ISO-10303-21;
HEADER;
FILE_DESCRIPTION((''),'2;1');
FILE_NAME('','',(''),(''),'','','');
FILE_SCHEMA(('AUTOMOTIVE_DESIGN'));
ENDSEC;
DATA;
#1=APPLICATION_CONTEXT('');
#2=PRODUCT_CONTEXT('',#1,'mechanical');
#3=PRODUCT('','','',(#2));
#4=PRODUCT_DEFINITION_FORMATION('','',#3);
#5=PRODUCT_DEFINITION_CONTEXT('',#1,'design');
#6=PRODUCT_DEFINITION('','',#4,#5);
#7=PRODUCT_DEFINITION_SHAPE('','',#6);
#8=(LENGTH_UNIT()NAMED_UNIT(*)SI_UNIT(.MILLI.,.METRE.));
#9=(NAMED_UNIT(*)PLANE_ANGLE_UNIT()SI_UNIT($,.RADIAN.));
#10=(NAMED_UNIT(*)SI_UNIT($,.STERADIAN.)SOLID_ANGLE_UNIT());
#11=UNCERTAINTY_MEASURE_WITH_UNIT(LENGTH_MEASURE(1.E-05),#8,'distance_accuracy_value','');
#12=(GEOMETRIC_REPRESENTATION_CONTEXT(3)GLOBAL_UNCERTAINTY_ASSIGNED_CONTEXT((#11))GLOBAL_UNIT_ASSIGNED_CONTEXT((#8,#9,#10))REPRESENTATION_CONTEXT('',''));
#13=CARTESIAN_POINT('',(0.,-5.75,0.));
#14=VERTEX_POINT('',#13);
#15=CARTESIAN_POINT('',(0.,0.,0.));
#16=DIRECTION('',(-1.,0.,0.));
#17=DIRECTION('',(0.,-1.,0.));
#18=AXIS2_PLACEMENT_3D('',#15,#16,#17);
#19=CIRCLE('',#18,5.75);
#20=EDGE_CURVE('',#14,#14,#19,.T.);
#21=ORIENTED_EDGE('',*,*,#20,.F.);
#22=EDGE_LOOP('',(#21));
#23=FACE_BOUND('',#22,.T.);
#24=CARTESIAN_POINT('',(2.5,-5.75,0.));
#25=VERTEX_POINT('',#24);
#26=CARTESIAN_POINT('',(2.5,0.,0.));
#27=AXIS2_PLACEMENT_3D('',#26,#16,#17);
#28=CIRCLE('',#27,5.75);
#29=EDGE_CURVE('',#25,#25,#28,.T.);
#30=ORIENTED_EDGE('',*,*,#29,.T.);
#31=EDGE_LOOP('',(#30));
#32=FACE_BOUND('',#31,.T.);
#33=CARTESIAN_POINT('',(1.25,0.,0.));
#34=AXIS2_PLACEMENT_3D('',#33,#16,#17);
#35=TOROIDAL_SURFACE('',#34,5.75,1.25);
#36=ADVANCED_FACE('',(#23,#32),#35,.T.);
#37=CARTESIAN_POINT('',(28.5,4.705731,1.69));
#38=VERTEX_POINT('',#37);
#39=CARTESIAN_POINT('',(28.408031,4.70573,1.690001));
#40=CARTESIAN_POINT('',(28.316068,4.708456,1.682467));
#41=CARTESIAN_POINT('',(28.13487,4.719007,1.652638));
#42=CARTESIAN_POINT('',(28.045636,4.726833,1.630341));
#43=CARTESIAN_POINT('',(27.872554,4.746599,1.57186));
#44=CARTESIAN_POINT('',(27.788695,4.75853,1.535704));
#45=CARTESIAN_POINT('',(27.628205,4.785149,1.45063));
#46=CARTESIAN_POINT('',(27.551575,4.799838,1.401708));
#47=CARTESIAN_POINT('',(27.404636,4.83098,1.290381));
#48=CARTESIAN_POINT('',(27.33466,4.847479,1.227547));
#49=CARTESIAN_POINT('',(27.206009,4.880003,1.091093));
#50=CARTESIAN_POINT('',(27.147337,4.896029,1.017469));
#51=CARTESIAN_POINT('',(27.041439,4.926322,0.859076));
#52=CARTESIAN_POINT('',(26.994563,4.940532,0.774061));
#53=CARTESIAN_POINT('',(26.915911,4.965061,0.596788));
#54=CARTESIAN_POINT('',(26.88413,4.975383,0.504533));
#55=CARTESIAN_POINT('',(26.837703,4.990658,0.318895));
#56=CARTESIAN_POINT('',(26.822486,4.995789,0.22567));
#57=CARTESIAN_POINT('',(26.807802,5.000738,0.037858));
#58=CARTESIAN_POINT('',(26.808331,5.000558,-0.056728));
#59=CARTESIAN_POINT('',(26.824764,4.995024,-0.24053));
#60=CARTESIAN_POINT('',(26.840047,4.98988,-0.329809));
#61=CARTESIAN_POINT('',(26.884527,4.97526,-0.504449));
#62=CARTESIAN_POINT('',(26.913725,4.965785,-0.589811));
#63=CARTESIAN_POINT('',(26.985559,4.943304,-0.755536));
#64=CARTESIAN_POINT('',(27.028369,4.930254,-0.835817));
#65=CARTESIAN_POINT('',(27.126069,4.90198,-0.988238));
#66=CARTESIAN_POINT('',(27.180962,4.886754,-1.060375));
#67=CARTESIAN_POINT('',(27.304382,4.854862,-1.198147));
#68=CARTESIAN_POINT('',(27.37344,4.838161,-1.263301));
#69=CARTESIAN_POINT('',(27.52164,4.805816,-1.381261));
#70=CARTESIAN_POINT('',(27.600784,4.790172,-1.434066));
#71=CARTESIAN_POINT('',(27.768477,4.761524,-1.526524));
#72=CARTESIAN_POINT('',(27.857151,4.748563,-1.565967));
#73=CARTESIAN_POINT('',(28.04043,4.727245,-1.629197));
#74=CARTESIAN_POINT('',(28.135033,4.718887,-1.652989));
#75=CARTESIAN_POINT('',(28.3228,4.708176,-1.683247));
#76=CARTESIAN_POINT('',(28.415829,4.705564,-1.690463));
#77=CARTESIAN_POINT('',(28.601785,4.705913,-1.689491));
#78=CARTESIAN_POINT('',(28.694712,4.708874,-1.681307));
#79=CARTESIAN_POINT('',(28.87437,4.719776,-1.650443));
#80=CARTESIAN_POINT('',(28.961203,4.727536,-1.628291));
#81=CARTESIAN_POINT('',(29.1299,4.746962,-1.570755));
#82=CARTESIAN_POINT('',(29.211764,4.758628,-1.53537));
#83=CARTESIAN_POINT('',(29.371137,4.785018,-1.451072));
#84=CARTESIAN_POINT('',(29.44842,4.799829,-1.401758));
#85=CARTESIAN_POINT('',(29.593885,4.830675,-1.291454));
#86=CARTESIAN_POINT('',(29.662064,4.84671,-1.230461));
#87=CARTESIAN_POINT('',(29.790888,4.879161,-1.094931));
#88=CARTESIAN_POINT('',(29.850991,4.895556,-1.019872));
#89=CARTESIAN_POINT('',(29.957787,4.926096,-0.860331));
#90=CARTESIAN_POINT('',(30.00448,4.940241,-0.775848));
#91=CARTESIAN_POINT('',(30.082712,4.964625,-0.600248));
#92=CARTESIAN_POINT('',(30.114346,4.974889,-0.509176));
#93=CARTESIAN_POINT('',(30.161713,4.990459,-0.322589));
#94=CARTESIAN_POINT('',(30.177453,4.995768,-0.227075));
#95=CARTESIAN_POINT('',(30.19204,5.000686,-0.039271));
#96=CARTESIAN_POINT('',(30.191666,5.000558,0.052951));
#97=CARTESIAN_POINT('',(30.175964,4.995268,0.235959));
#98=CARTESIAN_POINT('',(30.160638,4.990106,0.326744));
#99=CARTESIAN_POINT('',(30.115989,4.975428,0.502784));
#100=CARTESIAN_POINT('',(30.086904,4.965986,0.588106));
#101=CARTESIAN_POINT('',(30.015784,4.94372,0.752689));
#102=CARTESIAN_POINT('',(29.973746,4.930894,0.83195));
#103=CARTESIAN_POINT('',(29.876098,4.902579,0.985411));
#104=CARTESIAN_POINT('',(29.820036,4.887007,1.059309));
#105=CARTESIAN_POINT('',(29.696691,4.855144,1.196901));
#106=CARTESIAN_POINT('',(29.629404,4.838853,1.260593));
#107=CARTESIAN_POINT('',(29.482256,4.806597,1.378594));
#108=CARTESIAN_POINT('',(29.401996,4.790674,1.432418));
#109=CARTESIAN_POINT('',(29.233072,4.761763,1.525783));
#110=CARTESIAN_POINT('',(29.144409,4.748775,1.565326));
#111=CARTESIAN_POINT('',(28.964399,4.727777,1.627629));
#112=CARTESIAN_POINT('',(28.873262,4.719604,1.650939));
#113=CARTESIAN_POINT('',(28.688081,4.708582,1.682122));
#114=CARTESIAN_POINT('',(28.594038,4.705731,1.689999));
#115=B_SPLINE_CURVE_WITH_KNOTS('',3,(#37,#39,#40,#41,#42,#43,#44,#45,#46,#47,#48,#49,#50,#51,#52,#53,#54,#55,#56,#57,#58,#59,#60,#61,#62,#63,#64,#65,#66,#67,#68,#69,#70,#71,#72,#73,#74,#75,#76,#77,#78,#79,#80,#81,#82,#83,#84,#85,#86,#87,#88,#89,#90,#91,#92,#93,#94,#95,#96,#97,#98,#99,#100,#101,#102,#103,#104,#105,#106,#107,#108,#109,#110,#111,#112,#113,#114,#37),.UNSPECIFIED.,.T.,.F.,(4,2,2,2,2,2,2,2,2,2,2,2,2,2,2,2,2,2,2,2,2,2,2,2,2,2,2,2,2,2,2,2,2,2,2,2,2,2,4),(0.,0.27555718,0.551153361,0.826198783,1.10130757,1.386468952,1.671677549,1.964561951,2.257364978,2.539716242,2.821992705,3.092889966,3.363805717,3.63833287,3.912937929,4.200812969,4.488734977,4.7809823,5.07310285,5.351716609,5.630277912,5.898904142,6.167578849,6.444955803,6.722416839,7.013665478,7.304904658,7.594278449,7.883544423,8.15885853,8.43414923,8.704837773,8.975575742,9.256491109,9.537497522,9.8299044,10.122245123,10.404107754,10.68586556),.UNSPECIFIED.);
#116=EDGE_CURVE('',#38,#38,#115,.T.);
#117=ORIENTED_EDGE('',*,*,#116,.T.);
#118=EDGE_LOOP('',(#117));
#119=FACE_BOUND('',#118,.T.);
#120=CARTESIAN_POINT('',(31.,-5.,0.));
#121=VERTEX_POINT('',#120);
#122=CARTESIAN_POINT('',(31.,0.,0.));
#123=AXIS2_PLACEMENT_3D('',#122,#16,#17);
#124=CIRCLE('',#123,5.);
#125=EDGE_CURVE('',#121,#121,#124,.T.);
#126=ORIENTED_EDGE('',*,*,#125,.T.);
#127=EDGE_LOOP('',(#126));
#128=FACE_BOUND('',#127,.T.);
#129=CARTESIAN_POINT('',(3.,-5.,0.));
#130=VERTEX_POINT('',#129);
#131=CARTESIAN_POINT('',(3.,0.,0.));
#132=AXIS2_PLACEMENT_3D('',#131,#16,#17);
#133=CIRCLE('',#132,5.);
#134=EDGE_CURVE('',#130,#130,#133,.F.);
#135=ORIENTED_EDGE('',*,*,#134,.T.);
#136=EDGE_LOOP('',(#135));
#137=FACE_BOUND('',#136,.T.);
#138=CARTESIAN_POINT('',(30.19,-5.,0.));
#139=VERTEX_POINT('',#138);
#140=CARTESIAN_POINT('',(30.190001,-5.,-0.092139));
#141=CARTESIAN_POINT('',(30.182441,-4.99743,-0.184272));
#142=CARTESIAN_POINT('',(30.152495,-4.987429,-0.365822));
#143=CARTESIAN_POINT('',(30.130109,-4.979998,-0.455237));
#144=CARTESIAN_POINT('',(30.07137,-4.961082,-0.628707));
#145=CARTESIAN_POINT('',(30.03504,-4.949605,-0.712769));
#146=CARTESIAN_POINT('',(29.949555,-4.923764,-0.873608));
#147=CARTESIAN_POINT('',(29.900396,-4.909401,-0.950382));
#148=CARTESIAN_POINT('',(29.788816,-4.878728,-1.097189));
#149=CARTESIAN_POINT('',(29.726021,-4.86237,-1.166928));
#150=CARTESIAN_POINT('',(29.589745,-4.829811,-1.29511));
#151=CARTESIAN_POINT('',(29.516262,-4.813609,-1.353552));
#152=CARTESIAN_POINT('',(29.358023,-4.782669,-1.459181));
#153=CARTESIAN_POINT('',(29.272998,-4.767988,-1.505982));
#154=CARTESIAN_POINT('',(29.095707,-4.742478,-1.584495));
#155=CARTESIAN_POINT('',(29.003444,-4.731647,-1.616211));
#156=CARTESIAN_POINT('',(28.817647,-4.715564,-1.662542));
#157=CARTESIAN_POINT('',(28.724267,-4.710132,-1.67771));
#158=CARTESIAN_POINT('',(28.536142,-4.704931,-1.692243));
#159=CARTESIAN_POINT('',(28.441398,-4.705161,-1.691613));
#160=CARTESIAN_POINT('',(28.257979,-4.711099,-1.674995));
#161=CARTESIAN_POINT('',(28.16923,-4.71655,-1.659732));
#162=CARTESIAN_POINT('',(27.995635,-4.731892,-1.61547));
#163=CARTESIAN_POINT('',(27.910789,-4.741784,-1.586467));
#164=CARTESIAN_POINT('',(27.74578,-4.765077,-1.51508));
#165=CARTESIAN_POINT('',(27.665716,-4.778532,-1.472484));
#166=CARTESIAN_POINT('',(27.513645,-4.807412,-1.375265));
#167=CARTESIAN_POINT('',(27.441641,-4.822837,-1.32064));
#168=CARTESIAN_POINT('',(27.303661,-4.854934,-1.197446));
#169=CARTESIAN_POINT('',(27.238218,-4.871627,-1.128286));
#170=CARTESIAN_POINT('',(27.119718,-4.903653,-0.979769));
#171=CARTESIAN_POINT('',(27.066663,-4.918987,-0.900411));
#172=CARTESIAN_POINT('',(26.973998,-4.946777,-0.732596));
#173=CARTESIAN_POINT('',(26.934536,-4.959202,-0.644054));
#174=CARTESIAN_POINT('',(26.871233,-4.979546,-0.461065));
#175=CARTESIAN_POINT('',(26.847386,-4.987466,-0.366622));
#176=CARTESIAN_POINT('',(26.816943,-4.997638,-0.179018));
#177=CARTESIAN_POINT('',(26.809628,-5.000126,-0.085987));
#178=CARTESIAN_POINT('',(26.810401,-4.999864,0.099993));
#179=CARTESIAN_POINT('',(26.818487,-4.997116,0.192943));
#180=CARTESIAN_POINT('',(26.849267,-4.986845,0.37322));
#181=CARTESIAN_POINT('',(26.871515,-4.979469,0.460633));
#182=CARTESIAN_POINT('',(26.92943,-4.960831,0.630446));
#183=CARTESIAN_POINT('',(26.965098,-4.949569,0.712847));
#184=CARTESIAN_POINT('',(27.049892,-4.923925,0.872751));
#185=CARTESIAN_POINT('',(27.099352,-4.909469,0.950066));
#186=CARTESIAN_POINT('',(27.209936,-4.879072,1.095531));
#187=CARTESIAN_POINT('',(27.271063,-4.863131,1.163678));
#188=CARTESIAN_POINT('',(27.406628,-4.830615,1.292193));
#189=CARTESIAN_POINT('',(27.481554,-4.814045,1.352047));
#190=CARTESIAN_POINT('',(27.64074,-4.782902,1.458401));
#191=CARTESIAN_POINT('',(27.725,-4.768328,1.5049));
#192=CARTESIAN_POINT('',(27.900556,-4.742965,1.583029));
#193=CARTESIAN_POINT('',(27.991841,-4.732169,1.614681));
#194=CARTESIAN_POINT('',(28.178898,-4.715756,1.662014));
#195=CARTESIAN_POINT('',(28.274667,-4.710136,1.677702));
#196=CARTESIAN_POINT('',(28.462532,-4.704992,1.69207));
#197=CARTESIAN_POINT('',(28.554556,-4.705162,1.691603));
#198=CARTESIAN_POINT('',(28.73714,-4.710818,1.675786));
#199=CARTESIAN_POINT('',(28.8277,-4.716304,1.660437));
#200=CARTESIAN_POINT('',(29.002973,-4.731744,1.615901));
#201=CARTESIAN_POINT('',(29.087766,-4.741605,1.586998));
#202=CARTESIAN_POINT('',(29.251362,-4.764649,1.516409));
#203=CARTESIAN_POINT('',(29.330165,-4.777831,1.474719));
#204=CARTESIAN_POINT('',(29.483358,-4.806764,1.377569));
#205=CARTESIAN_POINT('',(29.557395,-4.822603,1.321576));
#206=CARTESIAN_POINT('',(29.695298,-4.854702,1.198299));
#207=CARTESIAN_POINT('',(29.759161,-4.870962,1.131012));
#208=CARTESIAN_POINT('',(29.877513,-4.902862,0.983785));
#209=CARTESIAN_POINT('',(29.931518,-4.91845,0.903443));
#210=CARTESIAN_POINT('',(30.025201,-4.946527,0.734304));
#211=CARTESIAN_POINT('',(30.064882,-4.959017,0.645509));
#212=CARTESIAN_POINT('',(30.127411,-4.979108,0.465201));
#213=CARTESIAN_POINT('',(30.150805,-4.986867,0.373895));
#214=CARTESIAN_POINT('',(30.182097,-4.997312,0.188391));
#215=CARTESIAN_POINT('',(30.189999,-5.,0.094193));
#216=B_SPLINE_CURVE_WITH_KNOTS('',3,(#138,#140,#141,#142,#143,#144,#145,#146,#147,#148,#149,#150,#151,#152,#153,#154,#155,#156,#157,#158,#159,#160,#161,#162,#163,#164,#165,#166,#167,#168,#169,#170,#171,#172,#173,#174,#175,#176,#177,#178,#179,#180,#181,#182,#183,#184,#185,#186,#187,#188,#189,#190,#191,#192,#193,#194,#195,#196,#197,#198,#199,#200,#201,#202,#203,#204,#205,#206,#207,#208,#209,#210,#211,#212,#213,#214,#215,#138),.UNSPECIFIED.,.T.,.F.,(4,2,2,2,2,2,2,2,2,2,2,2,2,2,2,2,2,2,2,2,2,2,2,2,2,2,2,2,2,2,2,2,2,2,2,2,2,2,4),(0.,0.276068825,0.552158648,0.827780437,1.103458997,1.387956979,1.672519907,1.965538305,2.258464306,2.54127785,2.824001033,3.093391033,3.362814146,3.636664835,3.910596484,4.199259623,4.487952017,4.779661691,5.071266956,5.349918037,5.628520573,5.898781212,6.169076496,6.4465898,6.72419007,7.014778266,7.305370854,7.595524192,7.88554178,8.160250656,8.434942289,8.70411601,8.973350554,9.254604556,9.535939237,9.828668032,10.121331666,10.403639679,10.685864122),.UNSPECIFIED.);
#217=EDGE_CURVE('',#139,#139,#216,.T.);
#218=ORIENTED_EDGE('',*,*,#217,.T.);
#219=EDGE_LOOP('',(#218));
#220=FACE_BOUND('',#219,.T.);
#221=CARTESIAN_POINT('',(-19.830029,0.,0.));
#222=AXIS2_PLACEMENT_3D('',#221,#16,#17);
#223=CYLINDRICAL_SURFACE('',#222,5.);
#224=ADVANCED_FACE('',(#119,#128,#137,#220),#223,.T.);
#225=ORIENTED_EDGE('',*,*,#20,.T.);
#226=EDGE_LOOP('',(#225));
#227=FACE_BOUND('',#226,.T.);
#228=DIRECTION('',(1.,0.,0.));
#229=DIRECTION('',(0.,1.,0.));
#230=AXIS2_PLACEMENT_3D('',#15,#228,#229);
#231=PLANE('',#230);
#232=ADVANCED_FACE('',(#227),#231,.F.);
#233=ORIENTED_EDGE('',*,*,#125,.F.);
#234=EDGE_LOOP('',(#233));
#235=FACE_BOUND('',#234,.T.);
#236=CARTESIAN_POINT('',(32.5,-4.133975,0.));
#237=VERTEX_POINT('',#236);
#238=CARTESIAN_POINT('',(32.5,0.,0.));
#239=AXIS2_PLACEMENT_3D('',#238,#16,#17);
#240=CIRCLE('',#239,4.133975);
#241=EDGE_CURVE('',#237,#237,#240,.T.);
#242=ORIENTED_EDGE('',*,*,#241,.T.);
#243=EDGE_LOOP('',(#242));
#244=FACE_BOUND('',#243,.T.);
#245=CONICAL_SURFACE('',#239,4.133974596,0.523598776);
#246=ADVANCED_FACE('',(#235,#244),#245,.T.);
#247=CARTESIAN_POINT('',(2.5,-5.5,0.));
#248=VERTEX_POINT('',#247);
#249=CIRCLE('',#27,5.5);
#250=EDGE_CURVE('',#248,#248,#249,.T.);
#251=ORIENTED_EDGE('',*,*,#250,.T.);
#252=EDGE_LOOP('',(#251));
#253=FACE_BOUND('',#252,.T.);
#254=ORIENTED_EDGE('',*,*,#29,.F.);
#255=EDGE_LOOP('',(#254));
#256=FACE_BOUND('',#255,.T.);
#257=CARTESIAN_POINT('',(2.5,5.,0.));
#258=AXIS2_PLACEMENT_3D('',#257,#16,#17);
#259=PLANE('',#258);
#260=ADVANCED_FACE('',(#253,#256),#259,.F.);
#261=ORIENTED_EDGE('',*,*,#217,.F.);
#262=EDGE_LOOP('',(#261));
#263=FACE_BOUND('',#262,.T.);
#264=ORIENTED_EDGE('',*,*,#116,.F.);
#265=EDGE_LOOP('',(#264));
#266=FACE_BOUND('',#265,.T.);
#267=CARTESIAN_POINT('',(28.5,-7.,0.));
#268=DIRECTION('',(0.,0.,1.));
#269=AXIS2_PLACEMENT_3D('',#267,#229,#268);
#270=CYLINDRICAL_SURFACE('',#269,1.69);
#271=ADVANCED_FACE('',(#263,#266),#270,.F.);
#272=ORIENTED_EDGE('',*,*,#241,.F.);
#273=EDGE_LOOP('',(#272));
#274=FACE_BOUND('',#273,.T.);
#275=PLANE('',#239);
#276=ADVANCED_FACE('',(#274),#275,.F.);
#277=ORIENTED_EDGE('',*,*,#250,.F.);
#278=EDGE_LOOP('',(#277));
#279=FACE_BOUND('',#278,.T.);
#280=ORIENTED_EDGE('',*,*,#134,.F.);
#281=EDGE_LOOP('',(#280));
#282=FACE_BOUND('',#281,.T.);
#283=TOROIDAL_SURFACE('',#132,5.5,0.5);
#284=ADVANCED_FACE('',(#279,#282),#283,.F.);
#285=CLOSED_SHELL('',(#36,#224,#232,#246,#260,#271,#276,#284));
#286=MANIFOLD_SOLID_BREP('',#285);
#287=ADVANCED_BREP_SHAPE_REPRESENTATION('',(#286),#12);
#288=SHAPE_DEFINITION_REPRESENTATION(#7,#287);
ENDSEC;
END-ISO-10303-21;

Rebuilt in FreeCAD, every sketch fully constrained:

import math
import FreeCAD as App
import Part
import Sketcher

V = App.Vector
Q = App.Units.Quantity


def edges_at(feature, points):
    """Names of the edges that pass closest to the given points."""
    edges = feature.Shape.Edges
    near = lambda p: min(range(len(edges)), key=lambda i: edges[i].distToShape(Part.Vertex(*p))[0])
    return sorted({f"Edge{near(p) + 1}" for p in points})

doc = App.newDocument("Part")
body = doc.addObject("PartDesign::Body", "Body")

# Sketch on XY plane
sketch1 = body.newObject("Sketcher::SketchObject", "Sketch")
sketch1.AttachmentSupport = (doc.getObject("XY_Plane"), [""])
sketch1.MapMode = "FlatFace"
sketch1.addGeometry([
    Part.LineSegment(V(0, 0, 0), V(32.5, 0, 0)),  # 0
    Part.LineSegment(V(32.5, 0, 0), V(32.5, 4.133975, 0)),  # 1
    Part.LineSegment(V(32.5, 4.133975, 0), V(31, 5, 0)),  # 2
    Part.LineSegment(V(31, 5, 0), V(2.5, 5, 0)),  # 3
    Part.LineSegment(V(2.5, 5, 0), V(2.5, 5.75, 0)),  # 4
    Part.ArcOfCircle(Part.Circle(V(1.25, 5.75, 0), V(0, 0, 1), 1.25), math.radians(0), math.radians(180)),  # 5
    Part.LineSegment(V(0, 5.75, 0), V(0, 0, 0)),  # 6
], False)
sketch1.addConstraint([
    Sketcher.Constraint("Coincident", 0, 2, 1, 1),
    Sketcher.Constraint("Coincident", 1, 2, 2, 1),
    Sketcher.Constraint("Coincident", 2, 2, 3, 1),
    Sketcher.Constraint("Coincident", 3, 2, 4, 1),
    Sketcher.Constraint("Tangent", 4, 2, 5, 1),
    Sketcher.Constraint("Tangent", 5, 2, 6, 1),
    Sketcher.Constraint("Coincident", 6, 2, 0, 1),
    Sketcher.Constraint("Horizontal", 0),
    Sketcher.Constraint("Vertical", 1),
    Sketcher.Constraint("Horizontal", 3),
    Sketcher.Constraint("Vertical", 4),
    Sketcher.Constraint("Vertical", 6),
    Sketcher.Constraint("Coincident", 6, 2, -1, 1),
    Sketcher.Constraint("Angle", 2, Q("150 deg")),
    Sketcher.Constraint("Radius", 5, 1.25),
    Sketcher.Constraint("DistanceX", 0, 1, 0, 2, 32.5),
    Sketcher.Constraint("DistanceX", 3, 2, 3, 1, 28.5),
    Sketcher.Constraint("DistanceY", -1, 1, 2, 2, 5.0),
    Sketcher.Constraint("DistanceY", 4, 1, 4, 2, 0.75),
])
revolution = body.newObject("PartDesign::Revolution", "Revolution")
revolution.Profile = sketch1
revolution.ReferenceAxis = (sketch1, ["H_Axis"])
revolution.Angle = 360
doc.recompute()

fillet = body.newObject("PartDesign::Fillet", "Fillet")
fillet.Base = (revolution, edges_at(revolution, [(2.5, 5, 0)]))
fillet.Radius = 0.5

# Sketch on XZ plane
sketch2 = body.newObject("Sketcher::SketchObject", "Sketch001")
sketch2.AttachmentSupport = (doc.getObject("XZ_Plane"), [""])
sketch2.MapMode = "FlatFace"
sketch2.addGeometry(Part.Circle(V(28.5, 0, 0), V(0, 0, 1), 1.69), False)
sketch2.addConstraint([
    Sketcher.Constraint("PointOnObject", 0, 3, -1),
    Sketcher.Constraint("Diameter", 0, 3.38),
    Sketcher.Constraint("DistanceX", -1, 1, 0, 3, 28.5),
])
pocket1 = body.newObject("PartDesign::Pocket", "Pocket")
pocket1.Profile = sketch2
pocket1.Type = "ThroughAll"
pocket1.Midplane = True

doc.recompute()
